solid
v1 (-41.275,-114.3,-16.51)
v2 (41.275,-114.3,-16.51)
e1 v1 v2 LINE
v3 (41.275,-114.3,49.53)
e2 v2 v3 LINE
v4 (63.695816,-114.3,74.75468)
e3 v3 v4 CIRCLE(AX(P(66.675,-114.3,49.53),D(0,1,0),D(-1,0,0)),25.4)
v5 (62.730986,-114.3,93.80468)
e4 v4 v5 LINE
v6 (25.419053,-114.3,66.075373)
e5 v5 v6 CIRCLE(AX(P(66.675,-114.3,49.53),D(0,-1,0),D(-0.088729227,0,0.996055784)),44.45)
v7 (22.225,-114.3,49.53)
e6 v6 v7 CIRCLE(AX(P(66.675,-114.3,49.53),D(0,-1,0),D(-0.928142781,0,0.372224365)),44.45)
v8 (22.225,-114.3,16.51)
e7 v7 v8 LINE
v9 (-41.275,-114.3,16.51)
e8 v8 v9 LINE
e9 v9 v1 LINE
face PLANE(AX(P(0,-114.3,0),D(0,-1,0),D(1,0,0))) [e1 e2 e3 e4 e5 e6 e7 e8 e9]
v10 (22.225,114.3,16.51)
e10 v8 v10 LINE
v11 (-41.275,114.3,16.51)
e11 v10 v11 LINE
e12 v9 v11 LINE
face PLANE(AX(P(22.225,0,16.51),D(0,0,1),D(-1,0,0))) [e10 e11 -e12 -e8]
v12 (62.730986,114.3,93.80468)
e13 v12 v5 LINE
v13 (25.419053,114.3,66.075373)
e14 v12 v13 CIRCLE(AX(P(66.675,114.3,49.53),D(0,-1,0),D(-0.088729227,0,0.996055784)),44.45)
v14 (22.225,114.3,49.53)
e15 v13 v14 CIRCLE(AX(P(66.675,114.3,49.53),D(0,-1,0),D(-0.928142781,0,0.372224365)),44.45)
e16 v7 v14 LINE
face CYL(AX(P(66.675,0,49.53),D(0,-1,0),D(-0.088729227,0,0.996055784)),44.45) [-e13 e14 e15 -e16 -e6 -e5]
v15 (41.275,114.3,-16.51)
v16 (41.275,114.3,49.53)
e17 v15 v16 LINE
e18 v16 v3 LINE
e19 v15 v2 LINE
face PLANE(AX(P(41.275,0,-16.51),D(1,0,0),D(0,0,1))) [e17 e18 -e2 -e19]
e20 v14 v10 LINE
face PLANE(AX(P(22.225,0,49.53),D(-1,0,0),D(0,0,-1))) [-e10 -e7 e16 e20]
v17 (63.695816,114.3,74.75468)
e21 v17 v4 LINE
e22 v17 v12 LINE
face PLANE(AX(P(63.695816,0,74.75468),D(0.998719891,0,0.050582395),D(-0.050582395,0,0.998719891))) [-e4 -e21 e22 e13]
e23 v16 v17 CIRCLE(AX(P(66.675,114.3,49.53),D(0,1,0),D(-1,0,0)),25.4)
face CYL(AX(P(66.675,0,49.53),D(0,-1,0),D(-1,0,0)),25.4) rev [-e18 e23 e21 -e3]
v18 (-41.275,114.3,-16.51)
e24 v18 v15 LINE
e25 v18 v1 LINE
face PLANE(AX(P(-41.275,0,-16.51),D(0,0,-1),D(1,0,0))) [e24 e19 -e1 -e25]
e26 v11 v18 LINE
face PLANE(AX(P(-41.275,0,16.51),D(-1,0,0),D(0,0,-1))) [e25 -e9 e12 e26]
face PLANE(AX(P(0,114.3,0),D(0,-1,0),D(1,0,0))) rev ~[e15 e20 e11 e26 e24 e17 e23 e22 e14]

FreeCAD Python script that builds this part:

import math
import FreeCAD as App
import Part
import Sketcher
Q = App.Units.Quantity

doc = App.newDocument("Part")
body = doc.addObject("PartDesign::Body", "Body")

# Sketch on XZ plane
sketch1 = body.newObject("Sketcher::SketchObject", "Sketch")
sketch1.AttachmentSupport = (doc.getObject("XZ_Plane"), [""])
sketch1.MapMode = "FlatFace"
sketch1.addGeometry(Part.LineSegment(App.Vector(-41, 17, 0), App.Vector(-41, -17, 0)), False)
sketch1.addGeometry(Part.LineSegment(App.Vector(-41, -17, 0), App.Vector(41, -17, 0)), False)
sketch1.addGeometry(Part.LineSegment(App.Vector(41, -17, 0), App.Vector(41, 50, 0)), False)
sketch1.addGeometry(Part.ArcOfCircle(Part.Circle(App.Vector(67, 50, 0), App.Vector(0, 0, 1), 25), math.radians(97), math.radians(180)), False)
sketch1.addGeometry(Part.LineSegment(App.Vector(64, 75, 0), App.Vector(63, 94, 0)), False)
sketch1.addGeometry(Part.ArcOfCircle(Part.Circle(App.Vector(67, 50, 0), App.Vector(0, 0, 1), 44), math.radians(95), math.radians(158)), False)
sketch1.addGeometry(Part.ArcOfCircle(Part.Circle(App.Vector(67, 50, 0), App.Vector(0, 0, 1), 44), math.radians(158), math.radians(180)), False)
sketch1.addGeometry(Part.LineSegment(App.Vector(22, 50, 0), App.Vector(22, 17, 0)), False)
sketch1.addGeometry(Part.LineSegment(App.Vector(22, 17, 0), App.Vector(-41, 17, 0)), False)
sketch1.addConstraint(Sketcher.Constraint("Coincident", 0, 2, 1, 1))
sketch1.addConstraint(Sketcher.Constraint("Coincident", 1, 2, 2, 1))
sketch1.addConstraint(Sketcher.Constraint("Tangent", 2, 2, 3, 2))
sketch1.addConstraint(Sketcher.Constraint("Coincident", 3, 1, 4, 1))
sketch1.addConstraint(Sketcher.Constraint("Coincident", 4, 2, 5, 1))
sketch1.addConstraint(Sketcher.Constraint("Tangent", 5, 2, 6, 1))
sketch1.addConstraint(Sketcher.Constraint("Tangent", 6, 2, 7, 1))
sketch1.addConstraint(Sketcher.Constraint("Coincident", 7, 2, 8, 1))
sketch1.addConstraint(Sketcher.Constraint("Coincident", 8, 2, 0, 1))
sketch1.addConstraint(Sketcher.Constraint("Vertical", 0))
sketch1.addConstraint(Sketcher.Constraint("Horizontal", 1))
sketch1.addConstraint(Sketcher.Constraint("Vertical", 2))
sketch1.addConstraint(Sketcher.Constraint("Vertical", 7))
sketch1.addConstraint(Sketcher.Constraint("Horizontal", 8))
sketch1.addConstraint(Sketcher.Constraint("Coincident", 5, 3, 3, 3))
sketch1.addConstraint(Sketcher.Constraint("Equal", 5, 6))
sketch1.addConstraint(Sketcher.Constraint("Symmetric", 1, 2, 8, 2, -1, 1))
sketch1.addConstraint(Sketcher.Constraint("Equal", 0, 7))
sketch1.addConstraint(Sketcher.Constraint("Radius", 3, Q("1 in")))
sketch1.addConstraint(Sketcher.Constraint("Radius", 5, Q("1.75 in")))
sketch1.addConstraint(Sketcher.Constraint("DistanceX", 8, 2, 8, 1, Q("2.5 in")))
sketch1.addConstraint(Sketcher.Constraint("DistanceY", 0, 2, 0, 1, Q("1.3 in")))
sketch1.addConstraint(Sketcher.Constraint("DistanceY", 3, 1, 4, 2, Q("0.75 in")))
sketch1.addConstraint(Sketcher.Constraint("DistanceY", -1, 1, 3, 1, Q("74.75468 mm")))
sketch1.addConstraint(Sketcher.Constraint("DistanceX", -1, 1, 5, 2, Q("25.419053 mm")))
pad1 = body.newObject("PartDesign::Pad", "Pad")
pad1.Profile = sketch1
pad1.Length = Q("9 in")
pad1.Midplane = True

doc.recompute()
